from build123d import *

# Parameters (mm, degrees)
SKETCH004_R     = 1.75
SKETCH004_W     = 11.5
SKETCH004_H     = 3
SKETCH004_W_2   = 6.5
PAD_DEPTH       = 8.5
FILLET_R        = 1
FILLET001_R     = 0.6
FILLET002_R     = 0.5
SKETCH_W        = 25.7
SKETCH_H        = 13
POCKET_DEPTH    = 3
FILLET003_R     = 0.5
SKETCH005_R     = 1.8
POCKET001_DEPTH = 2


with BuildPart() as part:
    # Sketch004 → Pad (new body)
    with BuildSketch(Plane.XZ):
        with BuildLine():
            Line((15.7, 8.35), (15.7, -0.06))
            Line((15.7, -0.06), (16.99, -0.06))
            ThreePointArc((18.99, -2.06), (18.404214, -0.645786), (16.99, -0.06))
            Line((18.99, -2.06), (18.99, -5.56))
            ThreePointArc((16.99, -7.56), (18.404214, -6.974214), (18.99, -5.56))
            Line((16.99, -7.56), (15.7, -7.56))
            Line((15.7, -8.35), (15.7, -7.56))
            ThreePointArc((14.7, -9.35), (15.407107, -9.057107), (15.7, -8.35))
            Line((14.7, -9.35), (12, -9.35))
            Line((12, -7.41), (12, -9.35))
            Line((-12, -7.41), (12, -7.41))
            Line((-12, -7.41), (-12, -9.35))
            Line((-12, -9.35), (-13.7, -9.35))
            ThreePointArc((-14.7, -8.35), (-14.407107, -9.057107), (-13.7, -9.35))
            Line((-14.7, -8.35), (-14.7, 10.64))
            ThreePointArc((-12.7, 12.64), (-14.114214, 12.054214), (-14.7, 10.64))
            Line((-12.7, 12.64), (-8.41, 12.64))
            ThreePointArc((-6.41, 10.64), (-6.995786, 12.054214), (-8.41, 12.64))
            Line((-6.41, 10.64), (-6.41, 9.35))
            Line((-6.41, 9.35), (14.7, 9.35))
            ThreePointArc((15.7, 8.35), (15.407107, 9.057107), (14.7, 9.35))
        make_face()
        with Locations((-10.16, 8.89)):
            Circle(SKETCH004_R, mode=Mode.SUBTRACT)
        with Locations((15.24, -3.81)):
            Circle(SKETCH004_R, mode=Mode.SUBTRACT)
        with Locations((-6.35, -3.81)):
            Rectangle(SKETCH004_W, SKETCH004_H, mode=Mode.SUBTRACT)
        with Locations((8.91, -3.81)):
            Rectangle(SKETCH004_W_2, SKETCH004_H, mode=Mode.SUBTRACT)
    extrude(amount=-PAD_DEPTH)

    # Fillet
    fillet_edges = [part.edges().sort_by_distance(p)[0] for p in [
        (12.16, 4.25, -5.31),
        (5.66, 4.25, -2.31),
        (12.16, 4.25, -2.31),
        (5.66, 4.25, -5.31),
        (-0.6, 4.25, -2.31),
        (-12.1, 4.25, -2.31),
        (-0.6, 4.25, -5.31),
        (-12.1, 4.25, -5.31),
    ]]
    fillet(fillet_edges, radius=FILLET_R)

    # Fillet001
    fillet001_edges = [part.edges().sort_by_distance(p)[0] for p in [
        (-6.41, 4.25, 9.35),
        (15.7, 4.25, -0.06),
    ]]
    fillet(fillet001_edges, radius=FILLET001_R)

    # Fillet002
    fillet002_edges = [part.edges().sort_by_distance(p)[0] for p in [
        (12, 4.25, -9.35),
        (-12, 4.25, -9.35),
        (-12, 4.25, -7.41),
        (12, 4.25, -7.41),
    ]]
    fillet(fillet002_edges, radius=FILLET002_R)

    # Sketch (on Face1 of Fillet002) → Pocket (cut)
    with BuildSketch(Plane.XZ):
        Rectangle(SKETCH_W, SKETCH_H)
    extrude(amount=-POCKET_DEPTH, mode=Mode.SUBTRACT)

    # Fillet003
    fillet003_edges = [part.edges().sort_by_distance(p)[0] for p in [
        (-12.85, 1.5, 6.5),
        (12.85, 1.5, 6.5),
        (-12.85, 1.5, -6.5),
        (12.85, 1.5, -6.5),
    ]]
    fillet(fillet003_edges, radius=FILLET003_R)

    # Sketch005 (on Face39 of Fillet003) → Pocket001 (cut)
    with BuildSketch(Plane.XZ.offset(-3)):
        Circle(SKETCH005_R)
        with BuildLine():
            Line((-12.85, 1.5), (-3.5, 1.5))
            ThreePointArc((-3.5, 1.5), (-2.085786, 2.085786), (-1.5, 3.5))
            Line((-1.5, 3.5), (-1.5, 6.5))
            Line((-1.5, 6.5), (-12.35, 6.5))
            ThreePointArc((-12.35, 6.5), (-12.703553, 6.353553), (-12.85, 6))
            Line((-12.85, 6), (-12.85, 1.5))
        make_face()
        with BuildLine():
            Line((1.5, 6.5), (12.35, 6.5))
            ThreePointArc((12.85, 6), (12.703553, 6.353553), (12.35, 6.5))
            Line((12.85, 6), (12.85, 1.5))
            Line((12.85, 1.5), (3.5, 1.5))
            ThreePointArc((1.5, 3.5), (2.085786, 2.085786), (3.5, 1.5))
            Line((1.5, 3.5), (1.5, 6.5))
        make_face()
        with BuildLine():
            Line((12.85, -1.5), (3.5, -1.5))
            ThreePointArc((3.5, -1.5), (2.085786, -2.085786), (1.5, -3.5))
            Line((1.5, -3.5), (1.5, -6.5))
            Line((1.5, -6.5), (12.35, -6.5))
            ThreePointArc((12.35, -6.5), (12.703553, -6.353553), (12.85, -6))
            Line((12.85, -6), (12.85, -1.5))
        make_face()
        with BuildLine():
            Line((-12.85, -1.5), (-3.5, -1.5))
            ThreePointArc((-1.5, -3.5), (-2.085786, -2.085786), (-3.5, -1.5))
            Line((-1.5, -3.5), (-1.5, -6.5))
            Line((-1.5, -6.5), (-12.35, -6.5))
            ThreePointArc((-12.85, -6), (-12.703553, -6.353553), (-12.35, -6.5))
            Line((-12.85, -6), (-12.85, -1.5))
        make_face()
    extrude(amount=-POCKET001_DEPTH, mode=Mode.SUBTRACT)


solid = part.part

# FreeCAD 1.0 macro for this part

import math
import FreeCAD as App
import Part
import Sketcher
from FreeCAD import Vector


def edges_at(feature, points):
    """Names of the edges that pass closest to the given points."""
    edges = feature.Shape.Edges
    near = lambda p: min(range(len(edges)), key=lambda i: edges[i].distToShape(Part.Vertex(*p))[0])
    return sorted({f"Edge{near(p) + 1}" for p in points})

doc = App.newDocument("Part")
body = doc.addObject("PartDesign::Body", "Body")

sketch1 = body.newObject("Sketcher::SketchObject", "Sketch")
sketch1.AttachmentSupport = (doc.getObject("XZ_Plane"), [""])
sketch1.MapMode = "FlatFace"
sketch1.addGeometry([
    Part.LineSegment(Vector(15.7, -0.1, 0), Vector(15.7, 8.3, 0)),
    Part.ArcOfCircle(Part.Circle(Vector(14.7, 8.4, 0), Vector(0, 0, 1), 1), math.radians(0), math.radians(90)),
    Part.LineSegment(Vector(14.7, 9.3, 0), Vector(-6.4, 9.3, 0)),
    Part.LineSegment(Vector(-6.4, 9.3, 0), Vector(-6.4, 10.6, 0)),
    Part.ArcOfCircle(Part.Circle(Vector(-8.4, 10.6, 0), Vector(0, 0, 1), 2), math.radians(0), math.radians(90)),
    Part.LineSegment(Vector(-8.4, 12.6, 0), Vector(-12.7, 12.6, 0)),
    Part.ArcOfCircle(Part.Circle(Vector(-12.7, 10.6, 0), Vector(0, 0, 1), 2), math.radians(90), math.radians(180)),
    Part.LineSegment(Vector(-14.7, 10.6, 0), Vector(-14.7, -8.3, 0)),
    Part.ArcOfCircle(Part.Circle(Vector(-13.7, -8.4, 0), Vector(0, 0, 1), 1), math.radians(180), math.radians(270)),
    Part.LineSegment(Vector(-13.7, -9.3, 0), Vector(-12, -9.3, 0)),
    Part.LineSegment(Vector(-12, -9.3, 0), Vector(-12, -7.4, 0)),
    Part.LineSegment(Vector(-12, -7.4, 0), Vector(12, -7.4, 0)),
    Part.LineSegment(Vector(12, -7.4, 0), Vector(12, -9.3, 0)),
    Part.LineSegment(Vector(12, -9.3, 0), Vector(14.7, -9.3, 0)),
    Part.ArcOfCircle(Part.Circle(Vector(14.7, -8.4, 0), Vector(0, 0, 1), 1), math.radians(-90), math.radians(0)),
    Part.LineSegment(Vector(15.7, -8.3, 0), Vector(15.7, -7.6, 0)),
    Part.LineSegment(Vector(15.7, -7.6, 0), Vector(17, -7.6, 0)),
    Part.ArcOfCircle(Part.Circle(Vector(17, -5.6, 0), Vector(0, 0, 1), 2), math.radians(-90), math.radians(0)),
    Part.LineSegment(Vector(19, -5.6, 0), Vector(19, -2.1, 0)),
    Part.ArcOfCircle(Part.Circle(Vector(17, -2.1, 0), Vector(0, 0, 1), 2), math.radians(0), math.radians(90)),
    Part.LineSegment(Vector(17, -0.1, 0), Vector(15.7, -0.1, 0)),
    Part.Circle(Vector(15.2, -3.8, 0), Vector(0, 0, 1), 1.8),
    Part.LineSegment(Vector(5.7, -5.3, 0), Vector(5.7, -2.3, 0)),
    Part.LineSegment(Vector(5.7, -2.3, 0), Vector(12.2, -2.3, 0)),
    Part.LineSegment(Vector(12.2, -2.3, 0), Vector(12.2, -5.3, 0)),
    Part.LineSegment(Vector(12.2, -5.3, 0), Vector(5.7, -5.3, 0)),
    Part.LineSegment(Vector(-12.1, -5.3, 0), Vector(-12.1, -2.3, 0)),
    Part.LineSegment(Vector(-12.1, -2.3, 0), Vector(-0.6, -2.3, 0)),
    Part.LineSegment(Vector(-0.6, -2.3, 0), Vector(-0.6, -5.3, 0)),
    Part.LineSegment(Vector(-0.6, -5.3, 0), Vector(-12.1, -5.3, 0)),
    Part.Circle(Vector(-10.2, 8.9, 0), Vector(0, 0, 1), 1.8),
], False)
sketch1.addConstraint([
    Sketcher.Constraint("Tangent", 0, 2, 1, 1),
    Sketcher.Constraint("Tangent", 1, 2, 2, 1),
    Sketcher.Constraint("Coincident", 2, 2, 3, 1),
    Sketcher.Constraint("Tangent", 3, 2, 4, 1),
    Sketcher.Constraint("Tangent", 4, 2, 5, 1),
    Sketcher.Constraint("Tangent", 5, 2, 6, 1),
    Sketcher.Constraint("Tangent", 6, 2, 7, 1),
    Sketcher.Constraint("Tangent", 7, 2, 8, 1),
    Sketcher.Constraint("Tangent", 8, 2, 9, 1),
    Sketcher.Constraint("Coincident", 9, 2, 10, 1),
    Sketcher.Constraint("Coincident", 10, 2, 11, 1),
    Sketcher.Constraint("Coincident", 11, 2, 12, 1),
    Sketcher.Constraint("Coincident", 12, 2, 13, 1),
    Sketcher.Constraint("Tangent", 13, 2, 14, 1),
    Sketcher.Constraint("Tangent", 14, 2, 15, 1),
    Sketcher.Constraint("Coincident", 15, 2, 16, 1),
    Sketcher.Constraint("Tangent", 16, 2, 17, 1),
    Sketcher.Constraint("Tangent", 17, 2, 18, 1),
    Sketcher.Constraint("Tangent", 18, 2, 19, 1),
    Sketcher.Constraint("Tangent", 19, 2, 20, 1),
    Sketcher.Constraint("Coincident", 20, 2, 0, 1),
    Sketcher.Constraint("Coincident", 22, 2, 23, 1),
    Sketcher.Constraint("Coincident", 23, 2, 24, 1),
    Sketcher.Constraint("Coincident", 24, 2, 25, 1),
    Sketcher.Constraint("Coincident", 25, 2, 22, 1),
    Sketcher.Constraint("Coincident", 26, 2, 27, 1),
    Sketcher.Constraint("Coincident", 27, 2, 28, 1),
    Sketcher.Constraint("Coincident", 28, 2, 29, 1),
    Sketcher.Constraint("Coincident", 29, 2, 26, 1),
    Sketcher.Constraint("Vertical", 0),
    Sketcher.Constraint("Horizontal", 2),
    Sketcher.Constraint("Vertical", 3),
    Sketcher.Constraint("Horizontal", 5),
    Sketcher.Constraint("Vertical", 7),
    Sketcher.Constraint("Horizontal", 9),
    Sketcher.Constraint("Vertical", 10),
    Sketcher.Constraint("Horizontal", 11),
    Sketcher.Constraint("Vertical", 12),
    Sketcher.Constraint("Horizontal", 13),
    Sketcher.Constraint("Vertical", 15),
    Sketcher.Constraint("Horizontal", 16),
    Sketcher.Constraint("Vertical", 18),
    Sketcher.Constraint("Horizontal", 20),
    Sketcher.Constraint("Vertical", 22),
    Sketcher.Constraint("Horizontal", 23),
    Sketcher.Constraint("Vertical", 24),
    Sketcher.Constraint("Horizontal", 25),
    Sketcher.Constraint("Vertical", 26),
    Sketcher.Constraint("Horizontal", 27),
    Sketcher.Constraint("Vertical", 28),
    Sketcher.Constraint("Horizontal", 29),
    Sketcher.Constraint("Equal", 4, 6),
    Sketcher.Constraint("Equal", 1, 8),
    Sketcher.Constraint("Equal", 8, 14),
    Sketcher.Constraint("Equal", 6, 17),
    Sketcher.Constraint("Equal", 17, 19),
    Sketcher.Constraint("Equal", 21, 30),
    Sketcher.Constraint("Symmetric", 9, 2, 12, 2, -2),
    Sketcher.Constraint("Symmetric", 1, 3, 14, 3, -1),
    Sketcher.Constraint("Horizontal", 23, 2, 26, 2),
    Sketcher.Constraint("Horizontal", 25, 2, 28, 2),
    Sketcher.Constraint("Equal", 20, 3),
    Sketcher.Constraint("Radius", 1, 0.999999),
    Sketcher.Constraint("Radius", 4, 1.999999),
    Sketcher.Constraint("Diameter", 21, 3.5),
    Sketcher.Constraint("DistanceX", 11, 1, 11, 2, 24.0),
    Sketcher.Constraint("DistanceY", 22, 1, 22, 2, 3.0),
    Sketcher.Constraint("DistanceX", 9, 1, 9, 2, 1.7),
    Sketcher.Constraint("DistanceX", 13, 1, 13, 2, 2.7),
    Sketcher.Constraint("DistanceX", 23, 1, 23, 2, 6.5),
    Sketcher.Constraint("DistanceX", 27, 1, 27, 2, 11.5),
    Sketcher.Constraint("DistanceY", 18, 1, 18, 2, 3.5),
    Sketcher.Constraint("DistanceX", 2, 2, 2, 1, 21.11),
    Sketcher.Constraint("DistanceX", 16, 1, 16, 2, 1.29),
    Sketcher.Constraint("DistanceY", 0, 1, 0, 2, 8.41),
    Sketcher.Constraint("DistanceY", 7, 2, 7, 1, 18.99),
    Sketcher.Constraint("DistanceY", 10, 1, 10, 2, 1.94),
    Sketcher.Constraint("DistanceX", 26, 2, -1, 1, 12.1),
    Sketcher.Constraint("DistanceX", 30, 3, 21, 3, 25.4),
    Sketcher.Constraint("DistanceY", 21, 3, 30, 3, 12.7),
    Sketcher.Constraint("DistanceY", 10, 2, 30, 3, 16.3),
    Sketcher.Constraint("DistanceY", 11, 2, 22, 2, 5.1),
    Sketcher.Constraint("DistanceX", -1, 1, 21, 3, 15.24),
    Sketcher.Constraint("DistanceX", -1, 1, 22, 2, 5.66),
])
pad1 = body.newObject("PartDesign::Pad", "Pad")
pad1.Profile = sketch1
pad1.Length = 8.5
pad1.Reversed = True
doc.recompute()

fillet = body.newObject("PartDesign::Fillet", "Fillet")
fillet.Base = (pad1, edges_at(pad1, [
    (12.16, 4.25, -5.31),
    (5.66, 4.25, -2.31),
    (12.16, 4.25, -2.31),
    (5.66, 4.25, -5.31),
    (-0.6, 4.25, -2.31),
    (-12.1, 4.25, -2.31),
    (-0.6, 4.25, -5.31),
    (-12.1, 4.25, -5.31),
]))
fillet.Radius = 1
doc.recompute()

fillet2 = body.newObject("PartDesign::Fillet", "Fillet001")
fillet2.Base = (fillet, edges_at(fillet, [(-6.41, 4.25, 9.35), (15.7, 4.25, -0.06)]))
fillet2.Radius = 0.6
doc.recompute()

fillet3 = body.newObject("PartDesign::Fillet", "Fillet002")
fillet3.Base = (fillet2, edges_at(fillet2, [
    (12, 4.25, -9.35),
    (-12, 4.25, -9.35),
    (-12, 4.25, -7.41),
    (12, 4.25, -7.41),
]))
fillet3.Radius = 0.5

sketch2 = body.newObject("Sketcher::SketchObject", "Sketch001")
sketch2.AttachmentSupport = (doc.getObject("XZ_Plane"), [""])
sketch2.MapMode = "FlatFace"
sketch2.addGeometry([
    Part.LineSegment(Vector(-13, 6, 0), Vector(-13, -6, 0)),
    Part.LineSegment(Vector(-13, -6, 0), Vector(13, -6, 0)),
    Part.LineSegment(Vector(13, -6, 0), Vector(13, 6, 0)),
    Part.LineSegment(Vector(13, 6, 0), Vector(-13, 6, 0)),
], False)
sketch2.addConstraint([
    Sketcher.Constraint("Coincident", 0, 2, 1, 1),
    Sketcher.Constraint("Coincident", 1, 2, 2, 1),
    Sketcher.Constraint("Coincident", 2, 2, 3, 1),
    Sketcher.Constraint("Coincident", 3, 2, 0, 1),
    Sketcher.Constraint("Vertical", 0),
    Sketcher.Constraint("Horizontal", 1),
    Sketcher.Constraint("Vertical", 2),
    Sketcher.Constraint("Horizontal", 3),
    Sketcher.Constraint("Symmetric", 0, 2, 2, 2, -1, 1),
    Sketcher.Constraint("DistanceY", 0, 2, 0, 1, 13.0),
    Sketcher.Constraint("DistanceX", 1, 1, 1, 2, 25.7),
])
pocket1 = body.newObject("PartDesign::Pocket", "Pocket")
pocket1.Profile = sketch2
pocket1.Length = 3
doc.recompute()

fillet4 = body.newObject("PartDesign::Fillet", "Fillet003")
fillet4.Base = (pocket1, edges_at(pocket1, [
    (-12.85, 1.5, 6.5),
    (12.85, 1.5, 6.5),
    (-12.85, 1.5, -6.5),
    (12.85, 1.5, -6.5),
]))
fillet4.Radius = 0.5

sketch3 = body.newObject("Sketcher::SketchObject", "Sketch002")
sketch3.AttachmentSupport = (doc.getObject("XZ_Plane"), [""])
sketch3.MapMode = "FlatFace"
sketch3.AttachmentOffset = App.Placement(Vector(0, 0, -3), App.Rotation())
sketch3.addGeometry([
    Part.Circle(Vector(0, 0, 0), Vector(0, 0, 1), 1.8),
    Part.LineSegment(Vector(-12.8, 1.5, 0), Vector(-3.5, 1.5, 0)),
    Part.ArcOfCircle(Part.Circle(Vector(-3.5, 3.5, 0), Vector(0, 0, 1), 2), math.radians(-90), math.radians(0)),
    Part.LineSegment(Vector(-1.5, 3.5, 0), Vector(-1.5, 6.5, 0)),
    Part.LineSegment(Vector(-1.5, 6.5, 0), Vector(-12.3, 6.5, 0)),
    Part.ArcOfCircle(Part.Circle(Vector(-12.3, 6, 0), Vector(0, 0, 1), 0.5), math.radians(90), math.radians(180)),
    Part.LineSegment(Vector(-12.8, 6, 0), Vector(-12.8, 1.5, 0)),
    Part.LineSegment(Vector(12.3, 6.5, 0), Vector(1.5, 6.5, 0)),
    Part.LineSegment(Vector(1.5, 6.5, 0), Vector(1.5, 3.5, 0)),
    Part.ArcOfCircle(Part.Circle(Vector(3.5, 3.5, 0), Vector(0, 0, 1), 2), math.radians(180), math.radians(270)),
    Part.LineSegment(Vector(3.5, 1.5, 0), Vector(12.8, 1.5, 0)),
    Part.LineSegment(Vector(12.8, 1.5, 0), Vector(12.8, 6, 0)),
    Part.ArcOfCircle(Part.Circle(Vector(12.3, 6, 0), Vector(0, 0, 1), 0.5), math.radians(0), math.radians(90)),
    Part.LineSegment(Vector(12.8, -1.5, 0), Vector(3.5, -1.5, 0)),
    Part.ArcOfCircle(Part.Circle(Vector(3.5, -3.5, 0), Vector(0, 0, 1), 2), math.radians(90), math.radians(180)),
    Part.LineSegment(Vector(1.5, -3.5, 0), Vector(1.5, -6.5, 0)),
    Part.LineSegment(Vector(1.5, -6.5, 0), Vector(12.3, -6.5, 0)),
    Part.ArcOfCircle(Part.Circle(Vector(12.3, -6, 0), Vector(0, 0, 1), 0.5), math.radians(-90), math.radians(0)),
    Part.LineSegment(Vector(12.8, -6, 0), Vector(12.8, -1.5, 0)),
    Part.LineSegment(Vector(-3.5, -1.5, 0), Vector(-12.8, -1.5, 0)),
    Part.LineSegment(Vector(-12.8, -1.5, 0), Vector(-12.8, -6, 0)),
    Part.ArcOfCircle(Part.Circle(Vector(-12.3, -6, 0), Vector(0, 0, 1), 0.5), math.radians(-180), math.radians(-90)),
    Part.LineSegment(Vector(-12.3, -6.5, 0), Vector(-1.5, -6.5, 0)),
    Part.LineSegment(Vector(-1.5, -6.5, 0), Vector(-1.5, -3.5, 0)),
    Part.ArcOfCircle(Part.Circle(Vector(-3.5, -3.5, 0), Vector(0, 0, 1), 2), math.radians(0), math.radians(90)),
], False)
sketch3.addConstraint([
    Sketcher.Constraint("Tangent", 1, 2, 2, 1),
    Sketcher.Constraint("Tangent", 2, 2, 3, 1),
    Sketcher.Constraint("Coincident", 3, 2, 4, 1),
    Sketcher.Constraint("Coincident", 4, 2, 5, 1),
    Sketcher.Constraint("Coincident", 5, 2, 6, 1),
    Sketcher.Constraint("Coincident", 6, 2, 1, 1),
    Sketcher.Constraint("Coincident", 7, 2, 8, 1),
    Sketcher.Constraint("Tangent", 8, 2, 9, 1),
    Sketcher.Constraint("Tangent", 9, 2, 10, 1),
    Sketcher.Constraint("Coincident", 10, 2, 11, 1),
    Sketcher.Constraint("Coincident", 11, 2, 12, 1),
    Sketcher.Constraint("Coincident", 12, 2, 7, 1),
    Sketcher.Constraint("Tangent", 13, 2, 14, 1),
    Sketcher.Constraint("Tangent", 14, 2, 15, 1),
    Sketcher.Constraint("Coincident", 15, 2, 16, 1),
    Sketcher.Constraint("Coincident", 16, 2, 17, 1),
    Sketcher.Constraint("Coincident", 17, 2, 18, 1),
    Sketcher.Constraint("Coincident", 18, 2, 13, 1),
    Sketcher.Constraint("Coincident", 19, 2, 20, 1),
    Sketcher.Constraint("Coincident", 20, 2, 21, 1),
    Sketcher.Constraint("Coincident", 21, 2, 22, 1),
    Sketcher.Constraint("Coincident", 22, 2, 23, 1),
    Sketcher.Constraint("Tangent", 23, 2, 24, 1),
    Sketcher.Constraint("Tangent", 24, 2, 19, 1),
    Sketcher.Constraint("Horizontal", 1),
    Sketcher.Constraint("Vertical", 3),
    Sketcher.Constraint("Horizontal", 4),
    Sketcher.Constraint("Vertical", 6),
    Sketcher.Constraint("Horizontal", 7),
    Sketcher.Constraint("Vertical", 8),
    Sketcher.Constraint("Horizontal", 10),
    Sketcher.Constraint("Vertical", 11),
    Sketcher.Constraint("Horizontal", 13),
    Sketcher.Constraint("Vertical", 15),
    Sketcher.Constraint("Horizontal", 16),
    Sketcher.Constraint("Vertical", 18),
    Sketcher.Constraint("Horizontal", 19),
    Sketcher.Constraint("Vertical", 20),
    Sketcher.Constraint("Horizontal", 22),
    Sketcher.Constraint("Vertical", 23),
    Sketcher.Constraint("Coincident", 0, 3, -1, 1),
    Sketcher.Constraint("Equal", 2, 9),
    Sketcher.Constraint("Equal", 5, 12),
    Sketcher.Constraint("Equal", 9, 14),
    Sketcher.Constraint("Equal", 12, 17),
    Sketcher.Constraint("Equal", 17, 21),
    Sketcher.Constraint("Equal", 14, 24),
    Sketcher.Constraint("Symmetric", 2, 3, 14, 3, -1, 1),
    Sketcher.Constraint("Symmetric", 5, 3, 17, 3, -1, 1),
    Sketcher.Constraint("Symmetric", 12, 3, 21, 3, -1, 1),
    Sketcher.Constraint("Symmetric", 9, 3, 24, 3, -1, 1),
    Sketcher.Constraint("Symmetric", 2, 3, 9, 3, -2),
    Sketcher.Constraint("Symmetric", 5, 3, 12, 3, -2),
    Sketcher.Constraint("Horizontal", 12, 3, 5, 2),
    Sketcher.Constraint("Horizontal", 5, 2, 11, 2),
    Sketcher.Constraint("Horizontal", 21, 3, 17, 2),
    Sketcher.Constraint("Horizontal", 17, 2, 20, 2),
    Sketcher.Constraint("Vertical", 21, 3, 4, 2),
    Sketcher.Constraint("Vertical", 17, 3, 12, 2),
    Sketcher.Constraint("Vertical", 12, 2, 16, 2),
    Sketcher.Constraint("Vertical", 4, 2, 21, 2),
    Sketcher.Constraint("Radius", 2, 1.999999),
    Sketcher.Constraint("Diameter", 0, 3.6),
    Sketcher.Constraint("Radius", 5, 0.500001),
    Sketcher.Constraint("DistanceY", 3, 1, 3, 2, 3.0),
    Sketcher.Constraint("DistanceY", -1, 1, 5, 3, 5.999999),
    Sketcher.Constraint("DistanceX", 1, 2, 9, 3, 6.999999),
    Sketcher.Constraint("DistanceX", 1, 1, 1, 2, 9.35),
])
pocket2 = body.newObject("PartDesign::Pocket", "Pocket001")
pocket2.Profile = sketch3
pocket2.Length = 2

doc.recompute()
